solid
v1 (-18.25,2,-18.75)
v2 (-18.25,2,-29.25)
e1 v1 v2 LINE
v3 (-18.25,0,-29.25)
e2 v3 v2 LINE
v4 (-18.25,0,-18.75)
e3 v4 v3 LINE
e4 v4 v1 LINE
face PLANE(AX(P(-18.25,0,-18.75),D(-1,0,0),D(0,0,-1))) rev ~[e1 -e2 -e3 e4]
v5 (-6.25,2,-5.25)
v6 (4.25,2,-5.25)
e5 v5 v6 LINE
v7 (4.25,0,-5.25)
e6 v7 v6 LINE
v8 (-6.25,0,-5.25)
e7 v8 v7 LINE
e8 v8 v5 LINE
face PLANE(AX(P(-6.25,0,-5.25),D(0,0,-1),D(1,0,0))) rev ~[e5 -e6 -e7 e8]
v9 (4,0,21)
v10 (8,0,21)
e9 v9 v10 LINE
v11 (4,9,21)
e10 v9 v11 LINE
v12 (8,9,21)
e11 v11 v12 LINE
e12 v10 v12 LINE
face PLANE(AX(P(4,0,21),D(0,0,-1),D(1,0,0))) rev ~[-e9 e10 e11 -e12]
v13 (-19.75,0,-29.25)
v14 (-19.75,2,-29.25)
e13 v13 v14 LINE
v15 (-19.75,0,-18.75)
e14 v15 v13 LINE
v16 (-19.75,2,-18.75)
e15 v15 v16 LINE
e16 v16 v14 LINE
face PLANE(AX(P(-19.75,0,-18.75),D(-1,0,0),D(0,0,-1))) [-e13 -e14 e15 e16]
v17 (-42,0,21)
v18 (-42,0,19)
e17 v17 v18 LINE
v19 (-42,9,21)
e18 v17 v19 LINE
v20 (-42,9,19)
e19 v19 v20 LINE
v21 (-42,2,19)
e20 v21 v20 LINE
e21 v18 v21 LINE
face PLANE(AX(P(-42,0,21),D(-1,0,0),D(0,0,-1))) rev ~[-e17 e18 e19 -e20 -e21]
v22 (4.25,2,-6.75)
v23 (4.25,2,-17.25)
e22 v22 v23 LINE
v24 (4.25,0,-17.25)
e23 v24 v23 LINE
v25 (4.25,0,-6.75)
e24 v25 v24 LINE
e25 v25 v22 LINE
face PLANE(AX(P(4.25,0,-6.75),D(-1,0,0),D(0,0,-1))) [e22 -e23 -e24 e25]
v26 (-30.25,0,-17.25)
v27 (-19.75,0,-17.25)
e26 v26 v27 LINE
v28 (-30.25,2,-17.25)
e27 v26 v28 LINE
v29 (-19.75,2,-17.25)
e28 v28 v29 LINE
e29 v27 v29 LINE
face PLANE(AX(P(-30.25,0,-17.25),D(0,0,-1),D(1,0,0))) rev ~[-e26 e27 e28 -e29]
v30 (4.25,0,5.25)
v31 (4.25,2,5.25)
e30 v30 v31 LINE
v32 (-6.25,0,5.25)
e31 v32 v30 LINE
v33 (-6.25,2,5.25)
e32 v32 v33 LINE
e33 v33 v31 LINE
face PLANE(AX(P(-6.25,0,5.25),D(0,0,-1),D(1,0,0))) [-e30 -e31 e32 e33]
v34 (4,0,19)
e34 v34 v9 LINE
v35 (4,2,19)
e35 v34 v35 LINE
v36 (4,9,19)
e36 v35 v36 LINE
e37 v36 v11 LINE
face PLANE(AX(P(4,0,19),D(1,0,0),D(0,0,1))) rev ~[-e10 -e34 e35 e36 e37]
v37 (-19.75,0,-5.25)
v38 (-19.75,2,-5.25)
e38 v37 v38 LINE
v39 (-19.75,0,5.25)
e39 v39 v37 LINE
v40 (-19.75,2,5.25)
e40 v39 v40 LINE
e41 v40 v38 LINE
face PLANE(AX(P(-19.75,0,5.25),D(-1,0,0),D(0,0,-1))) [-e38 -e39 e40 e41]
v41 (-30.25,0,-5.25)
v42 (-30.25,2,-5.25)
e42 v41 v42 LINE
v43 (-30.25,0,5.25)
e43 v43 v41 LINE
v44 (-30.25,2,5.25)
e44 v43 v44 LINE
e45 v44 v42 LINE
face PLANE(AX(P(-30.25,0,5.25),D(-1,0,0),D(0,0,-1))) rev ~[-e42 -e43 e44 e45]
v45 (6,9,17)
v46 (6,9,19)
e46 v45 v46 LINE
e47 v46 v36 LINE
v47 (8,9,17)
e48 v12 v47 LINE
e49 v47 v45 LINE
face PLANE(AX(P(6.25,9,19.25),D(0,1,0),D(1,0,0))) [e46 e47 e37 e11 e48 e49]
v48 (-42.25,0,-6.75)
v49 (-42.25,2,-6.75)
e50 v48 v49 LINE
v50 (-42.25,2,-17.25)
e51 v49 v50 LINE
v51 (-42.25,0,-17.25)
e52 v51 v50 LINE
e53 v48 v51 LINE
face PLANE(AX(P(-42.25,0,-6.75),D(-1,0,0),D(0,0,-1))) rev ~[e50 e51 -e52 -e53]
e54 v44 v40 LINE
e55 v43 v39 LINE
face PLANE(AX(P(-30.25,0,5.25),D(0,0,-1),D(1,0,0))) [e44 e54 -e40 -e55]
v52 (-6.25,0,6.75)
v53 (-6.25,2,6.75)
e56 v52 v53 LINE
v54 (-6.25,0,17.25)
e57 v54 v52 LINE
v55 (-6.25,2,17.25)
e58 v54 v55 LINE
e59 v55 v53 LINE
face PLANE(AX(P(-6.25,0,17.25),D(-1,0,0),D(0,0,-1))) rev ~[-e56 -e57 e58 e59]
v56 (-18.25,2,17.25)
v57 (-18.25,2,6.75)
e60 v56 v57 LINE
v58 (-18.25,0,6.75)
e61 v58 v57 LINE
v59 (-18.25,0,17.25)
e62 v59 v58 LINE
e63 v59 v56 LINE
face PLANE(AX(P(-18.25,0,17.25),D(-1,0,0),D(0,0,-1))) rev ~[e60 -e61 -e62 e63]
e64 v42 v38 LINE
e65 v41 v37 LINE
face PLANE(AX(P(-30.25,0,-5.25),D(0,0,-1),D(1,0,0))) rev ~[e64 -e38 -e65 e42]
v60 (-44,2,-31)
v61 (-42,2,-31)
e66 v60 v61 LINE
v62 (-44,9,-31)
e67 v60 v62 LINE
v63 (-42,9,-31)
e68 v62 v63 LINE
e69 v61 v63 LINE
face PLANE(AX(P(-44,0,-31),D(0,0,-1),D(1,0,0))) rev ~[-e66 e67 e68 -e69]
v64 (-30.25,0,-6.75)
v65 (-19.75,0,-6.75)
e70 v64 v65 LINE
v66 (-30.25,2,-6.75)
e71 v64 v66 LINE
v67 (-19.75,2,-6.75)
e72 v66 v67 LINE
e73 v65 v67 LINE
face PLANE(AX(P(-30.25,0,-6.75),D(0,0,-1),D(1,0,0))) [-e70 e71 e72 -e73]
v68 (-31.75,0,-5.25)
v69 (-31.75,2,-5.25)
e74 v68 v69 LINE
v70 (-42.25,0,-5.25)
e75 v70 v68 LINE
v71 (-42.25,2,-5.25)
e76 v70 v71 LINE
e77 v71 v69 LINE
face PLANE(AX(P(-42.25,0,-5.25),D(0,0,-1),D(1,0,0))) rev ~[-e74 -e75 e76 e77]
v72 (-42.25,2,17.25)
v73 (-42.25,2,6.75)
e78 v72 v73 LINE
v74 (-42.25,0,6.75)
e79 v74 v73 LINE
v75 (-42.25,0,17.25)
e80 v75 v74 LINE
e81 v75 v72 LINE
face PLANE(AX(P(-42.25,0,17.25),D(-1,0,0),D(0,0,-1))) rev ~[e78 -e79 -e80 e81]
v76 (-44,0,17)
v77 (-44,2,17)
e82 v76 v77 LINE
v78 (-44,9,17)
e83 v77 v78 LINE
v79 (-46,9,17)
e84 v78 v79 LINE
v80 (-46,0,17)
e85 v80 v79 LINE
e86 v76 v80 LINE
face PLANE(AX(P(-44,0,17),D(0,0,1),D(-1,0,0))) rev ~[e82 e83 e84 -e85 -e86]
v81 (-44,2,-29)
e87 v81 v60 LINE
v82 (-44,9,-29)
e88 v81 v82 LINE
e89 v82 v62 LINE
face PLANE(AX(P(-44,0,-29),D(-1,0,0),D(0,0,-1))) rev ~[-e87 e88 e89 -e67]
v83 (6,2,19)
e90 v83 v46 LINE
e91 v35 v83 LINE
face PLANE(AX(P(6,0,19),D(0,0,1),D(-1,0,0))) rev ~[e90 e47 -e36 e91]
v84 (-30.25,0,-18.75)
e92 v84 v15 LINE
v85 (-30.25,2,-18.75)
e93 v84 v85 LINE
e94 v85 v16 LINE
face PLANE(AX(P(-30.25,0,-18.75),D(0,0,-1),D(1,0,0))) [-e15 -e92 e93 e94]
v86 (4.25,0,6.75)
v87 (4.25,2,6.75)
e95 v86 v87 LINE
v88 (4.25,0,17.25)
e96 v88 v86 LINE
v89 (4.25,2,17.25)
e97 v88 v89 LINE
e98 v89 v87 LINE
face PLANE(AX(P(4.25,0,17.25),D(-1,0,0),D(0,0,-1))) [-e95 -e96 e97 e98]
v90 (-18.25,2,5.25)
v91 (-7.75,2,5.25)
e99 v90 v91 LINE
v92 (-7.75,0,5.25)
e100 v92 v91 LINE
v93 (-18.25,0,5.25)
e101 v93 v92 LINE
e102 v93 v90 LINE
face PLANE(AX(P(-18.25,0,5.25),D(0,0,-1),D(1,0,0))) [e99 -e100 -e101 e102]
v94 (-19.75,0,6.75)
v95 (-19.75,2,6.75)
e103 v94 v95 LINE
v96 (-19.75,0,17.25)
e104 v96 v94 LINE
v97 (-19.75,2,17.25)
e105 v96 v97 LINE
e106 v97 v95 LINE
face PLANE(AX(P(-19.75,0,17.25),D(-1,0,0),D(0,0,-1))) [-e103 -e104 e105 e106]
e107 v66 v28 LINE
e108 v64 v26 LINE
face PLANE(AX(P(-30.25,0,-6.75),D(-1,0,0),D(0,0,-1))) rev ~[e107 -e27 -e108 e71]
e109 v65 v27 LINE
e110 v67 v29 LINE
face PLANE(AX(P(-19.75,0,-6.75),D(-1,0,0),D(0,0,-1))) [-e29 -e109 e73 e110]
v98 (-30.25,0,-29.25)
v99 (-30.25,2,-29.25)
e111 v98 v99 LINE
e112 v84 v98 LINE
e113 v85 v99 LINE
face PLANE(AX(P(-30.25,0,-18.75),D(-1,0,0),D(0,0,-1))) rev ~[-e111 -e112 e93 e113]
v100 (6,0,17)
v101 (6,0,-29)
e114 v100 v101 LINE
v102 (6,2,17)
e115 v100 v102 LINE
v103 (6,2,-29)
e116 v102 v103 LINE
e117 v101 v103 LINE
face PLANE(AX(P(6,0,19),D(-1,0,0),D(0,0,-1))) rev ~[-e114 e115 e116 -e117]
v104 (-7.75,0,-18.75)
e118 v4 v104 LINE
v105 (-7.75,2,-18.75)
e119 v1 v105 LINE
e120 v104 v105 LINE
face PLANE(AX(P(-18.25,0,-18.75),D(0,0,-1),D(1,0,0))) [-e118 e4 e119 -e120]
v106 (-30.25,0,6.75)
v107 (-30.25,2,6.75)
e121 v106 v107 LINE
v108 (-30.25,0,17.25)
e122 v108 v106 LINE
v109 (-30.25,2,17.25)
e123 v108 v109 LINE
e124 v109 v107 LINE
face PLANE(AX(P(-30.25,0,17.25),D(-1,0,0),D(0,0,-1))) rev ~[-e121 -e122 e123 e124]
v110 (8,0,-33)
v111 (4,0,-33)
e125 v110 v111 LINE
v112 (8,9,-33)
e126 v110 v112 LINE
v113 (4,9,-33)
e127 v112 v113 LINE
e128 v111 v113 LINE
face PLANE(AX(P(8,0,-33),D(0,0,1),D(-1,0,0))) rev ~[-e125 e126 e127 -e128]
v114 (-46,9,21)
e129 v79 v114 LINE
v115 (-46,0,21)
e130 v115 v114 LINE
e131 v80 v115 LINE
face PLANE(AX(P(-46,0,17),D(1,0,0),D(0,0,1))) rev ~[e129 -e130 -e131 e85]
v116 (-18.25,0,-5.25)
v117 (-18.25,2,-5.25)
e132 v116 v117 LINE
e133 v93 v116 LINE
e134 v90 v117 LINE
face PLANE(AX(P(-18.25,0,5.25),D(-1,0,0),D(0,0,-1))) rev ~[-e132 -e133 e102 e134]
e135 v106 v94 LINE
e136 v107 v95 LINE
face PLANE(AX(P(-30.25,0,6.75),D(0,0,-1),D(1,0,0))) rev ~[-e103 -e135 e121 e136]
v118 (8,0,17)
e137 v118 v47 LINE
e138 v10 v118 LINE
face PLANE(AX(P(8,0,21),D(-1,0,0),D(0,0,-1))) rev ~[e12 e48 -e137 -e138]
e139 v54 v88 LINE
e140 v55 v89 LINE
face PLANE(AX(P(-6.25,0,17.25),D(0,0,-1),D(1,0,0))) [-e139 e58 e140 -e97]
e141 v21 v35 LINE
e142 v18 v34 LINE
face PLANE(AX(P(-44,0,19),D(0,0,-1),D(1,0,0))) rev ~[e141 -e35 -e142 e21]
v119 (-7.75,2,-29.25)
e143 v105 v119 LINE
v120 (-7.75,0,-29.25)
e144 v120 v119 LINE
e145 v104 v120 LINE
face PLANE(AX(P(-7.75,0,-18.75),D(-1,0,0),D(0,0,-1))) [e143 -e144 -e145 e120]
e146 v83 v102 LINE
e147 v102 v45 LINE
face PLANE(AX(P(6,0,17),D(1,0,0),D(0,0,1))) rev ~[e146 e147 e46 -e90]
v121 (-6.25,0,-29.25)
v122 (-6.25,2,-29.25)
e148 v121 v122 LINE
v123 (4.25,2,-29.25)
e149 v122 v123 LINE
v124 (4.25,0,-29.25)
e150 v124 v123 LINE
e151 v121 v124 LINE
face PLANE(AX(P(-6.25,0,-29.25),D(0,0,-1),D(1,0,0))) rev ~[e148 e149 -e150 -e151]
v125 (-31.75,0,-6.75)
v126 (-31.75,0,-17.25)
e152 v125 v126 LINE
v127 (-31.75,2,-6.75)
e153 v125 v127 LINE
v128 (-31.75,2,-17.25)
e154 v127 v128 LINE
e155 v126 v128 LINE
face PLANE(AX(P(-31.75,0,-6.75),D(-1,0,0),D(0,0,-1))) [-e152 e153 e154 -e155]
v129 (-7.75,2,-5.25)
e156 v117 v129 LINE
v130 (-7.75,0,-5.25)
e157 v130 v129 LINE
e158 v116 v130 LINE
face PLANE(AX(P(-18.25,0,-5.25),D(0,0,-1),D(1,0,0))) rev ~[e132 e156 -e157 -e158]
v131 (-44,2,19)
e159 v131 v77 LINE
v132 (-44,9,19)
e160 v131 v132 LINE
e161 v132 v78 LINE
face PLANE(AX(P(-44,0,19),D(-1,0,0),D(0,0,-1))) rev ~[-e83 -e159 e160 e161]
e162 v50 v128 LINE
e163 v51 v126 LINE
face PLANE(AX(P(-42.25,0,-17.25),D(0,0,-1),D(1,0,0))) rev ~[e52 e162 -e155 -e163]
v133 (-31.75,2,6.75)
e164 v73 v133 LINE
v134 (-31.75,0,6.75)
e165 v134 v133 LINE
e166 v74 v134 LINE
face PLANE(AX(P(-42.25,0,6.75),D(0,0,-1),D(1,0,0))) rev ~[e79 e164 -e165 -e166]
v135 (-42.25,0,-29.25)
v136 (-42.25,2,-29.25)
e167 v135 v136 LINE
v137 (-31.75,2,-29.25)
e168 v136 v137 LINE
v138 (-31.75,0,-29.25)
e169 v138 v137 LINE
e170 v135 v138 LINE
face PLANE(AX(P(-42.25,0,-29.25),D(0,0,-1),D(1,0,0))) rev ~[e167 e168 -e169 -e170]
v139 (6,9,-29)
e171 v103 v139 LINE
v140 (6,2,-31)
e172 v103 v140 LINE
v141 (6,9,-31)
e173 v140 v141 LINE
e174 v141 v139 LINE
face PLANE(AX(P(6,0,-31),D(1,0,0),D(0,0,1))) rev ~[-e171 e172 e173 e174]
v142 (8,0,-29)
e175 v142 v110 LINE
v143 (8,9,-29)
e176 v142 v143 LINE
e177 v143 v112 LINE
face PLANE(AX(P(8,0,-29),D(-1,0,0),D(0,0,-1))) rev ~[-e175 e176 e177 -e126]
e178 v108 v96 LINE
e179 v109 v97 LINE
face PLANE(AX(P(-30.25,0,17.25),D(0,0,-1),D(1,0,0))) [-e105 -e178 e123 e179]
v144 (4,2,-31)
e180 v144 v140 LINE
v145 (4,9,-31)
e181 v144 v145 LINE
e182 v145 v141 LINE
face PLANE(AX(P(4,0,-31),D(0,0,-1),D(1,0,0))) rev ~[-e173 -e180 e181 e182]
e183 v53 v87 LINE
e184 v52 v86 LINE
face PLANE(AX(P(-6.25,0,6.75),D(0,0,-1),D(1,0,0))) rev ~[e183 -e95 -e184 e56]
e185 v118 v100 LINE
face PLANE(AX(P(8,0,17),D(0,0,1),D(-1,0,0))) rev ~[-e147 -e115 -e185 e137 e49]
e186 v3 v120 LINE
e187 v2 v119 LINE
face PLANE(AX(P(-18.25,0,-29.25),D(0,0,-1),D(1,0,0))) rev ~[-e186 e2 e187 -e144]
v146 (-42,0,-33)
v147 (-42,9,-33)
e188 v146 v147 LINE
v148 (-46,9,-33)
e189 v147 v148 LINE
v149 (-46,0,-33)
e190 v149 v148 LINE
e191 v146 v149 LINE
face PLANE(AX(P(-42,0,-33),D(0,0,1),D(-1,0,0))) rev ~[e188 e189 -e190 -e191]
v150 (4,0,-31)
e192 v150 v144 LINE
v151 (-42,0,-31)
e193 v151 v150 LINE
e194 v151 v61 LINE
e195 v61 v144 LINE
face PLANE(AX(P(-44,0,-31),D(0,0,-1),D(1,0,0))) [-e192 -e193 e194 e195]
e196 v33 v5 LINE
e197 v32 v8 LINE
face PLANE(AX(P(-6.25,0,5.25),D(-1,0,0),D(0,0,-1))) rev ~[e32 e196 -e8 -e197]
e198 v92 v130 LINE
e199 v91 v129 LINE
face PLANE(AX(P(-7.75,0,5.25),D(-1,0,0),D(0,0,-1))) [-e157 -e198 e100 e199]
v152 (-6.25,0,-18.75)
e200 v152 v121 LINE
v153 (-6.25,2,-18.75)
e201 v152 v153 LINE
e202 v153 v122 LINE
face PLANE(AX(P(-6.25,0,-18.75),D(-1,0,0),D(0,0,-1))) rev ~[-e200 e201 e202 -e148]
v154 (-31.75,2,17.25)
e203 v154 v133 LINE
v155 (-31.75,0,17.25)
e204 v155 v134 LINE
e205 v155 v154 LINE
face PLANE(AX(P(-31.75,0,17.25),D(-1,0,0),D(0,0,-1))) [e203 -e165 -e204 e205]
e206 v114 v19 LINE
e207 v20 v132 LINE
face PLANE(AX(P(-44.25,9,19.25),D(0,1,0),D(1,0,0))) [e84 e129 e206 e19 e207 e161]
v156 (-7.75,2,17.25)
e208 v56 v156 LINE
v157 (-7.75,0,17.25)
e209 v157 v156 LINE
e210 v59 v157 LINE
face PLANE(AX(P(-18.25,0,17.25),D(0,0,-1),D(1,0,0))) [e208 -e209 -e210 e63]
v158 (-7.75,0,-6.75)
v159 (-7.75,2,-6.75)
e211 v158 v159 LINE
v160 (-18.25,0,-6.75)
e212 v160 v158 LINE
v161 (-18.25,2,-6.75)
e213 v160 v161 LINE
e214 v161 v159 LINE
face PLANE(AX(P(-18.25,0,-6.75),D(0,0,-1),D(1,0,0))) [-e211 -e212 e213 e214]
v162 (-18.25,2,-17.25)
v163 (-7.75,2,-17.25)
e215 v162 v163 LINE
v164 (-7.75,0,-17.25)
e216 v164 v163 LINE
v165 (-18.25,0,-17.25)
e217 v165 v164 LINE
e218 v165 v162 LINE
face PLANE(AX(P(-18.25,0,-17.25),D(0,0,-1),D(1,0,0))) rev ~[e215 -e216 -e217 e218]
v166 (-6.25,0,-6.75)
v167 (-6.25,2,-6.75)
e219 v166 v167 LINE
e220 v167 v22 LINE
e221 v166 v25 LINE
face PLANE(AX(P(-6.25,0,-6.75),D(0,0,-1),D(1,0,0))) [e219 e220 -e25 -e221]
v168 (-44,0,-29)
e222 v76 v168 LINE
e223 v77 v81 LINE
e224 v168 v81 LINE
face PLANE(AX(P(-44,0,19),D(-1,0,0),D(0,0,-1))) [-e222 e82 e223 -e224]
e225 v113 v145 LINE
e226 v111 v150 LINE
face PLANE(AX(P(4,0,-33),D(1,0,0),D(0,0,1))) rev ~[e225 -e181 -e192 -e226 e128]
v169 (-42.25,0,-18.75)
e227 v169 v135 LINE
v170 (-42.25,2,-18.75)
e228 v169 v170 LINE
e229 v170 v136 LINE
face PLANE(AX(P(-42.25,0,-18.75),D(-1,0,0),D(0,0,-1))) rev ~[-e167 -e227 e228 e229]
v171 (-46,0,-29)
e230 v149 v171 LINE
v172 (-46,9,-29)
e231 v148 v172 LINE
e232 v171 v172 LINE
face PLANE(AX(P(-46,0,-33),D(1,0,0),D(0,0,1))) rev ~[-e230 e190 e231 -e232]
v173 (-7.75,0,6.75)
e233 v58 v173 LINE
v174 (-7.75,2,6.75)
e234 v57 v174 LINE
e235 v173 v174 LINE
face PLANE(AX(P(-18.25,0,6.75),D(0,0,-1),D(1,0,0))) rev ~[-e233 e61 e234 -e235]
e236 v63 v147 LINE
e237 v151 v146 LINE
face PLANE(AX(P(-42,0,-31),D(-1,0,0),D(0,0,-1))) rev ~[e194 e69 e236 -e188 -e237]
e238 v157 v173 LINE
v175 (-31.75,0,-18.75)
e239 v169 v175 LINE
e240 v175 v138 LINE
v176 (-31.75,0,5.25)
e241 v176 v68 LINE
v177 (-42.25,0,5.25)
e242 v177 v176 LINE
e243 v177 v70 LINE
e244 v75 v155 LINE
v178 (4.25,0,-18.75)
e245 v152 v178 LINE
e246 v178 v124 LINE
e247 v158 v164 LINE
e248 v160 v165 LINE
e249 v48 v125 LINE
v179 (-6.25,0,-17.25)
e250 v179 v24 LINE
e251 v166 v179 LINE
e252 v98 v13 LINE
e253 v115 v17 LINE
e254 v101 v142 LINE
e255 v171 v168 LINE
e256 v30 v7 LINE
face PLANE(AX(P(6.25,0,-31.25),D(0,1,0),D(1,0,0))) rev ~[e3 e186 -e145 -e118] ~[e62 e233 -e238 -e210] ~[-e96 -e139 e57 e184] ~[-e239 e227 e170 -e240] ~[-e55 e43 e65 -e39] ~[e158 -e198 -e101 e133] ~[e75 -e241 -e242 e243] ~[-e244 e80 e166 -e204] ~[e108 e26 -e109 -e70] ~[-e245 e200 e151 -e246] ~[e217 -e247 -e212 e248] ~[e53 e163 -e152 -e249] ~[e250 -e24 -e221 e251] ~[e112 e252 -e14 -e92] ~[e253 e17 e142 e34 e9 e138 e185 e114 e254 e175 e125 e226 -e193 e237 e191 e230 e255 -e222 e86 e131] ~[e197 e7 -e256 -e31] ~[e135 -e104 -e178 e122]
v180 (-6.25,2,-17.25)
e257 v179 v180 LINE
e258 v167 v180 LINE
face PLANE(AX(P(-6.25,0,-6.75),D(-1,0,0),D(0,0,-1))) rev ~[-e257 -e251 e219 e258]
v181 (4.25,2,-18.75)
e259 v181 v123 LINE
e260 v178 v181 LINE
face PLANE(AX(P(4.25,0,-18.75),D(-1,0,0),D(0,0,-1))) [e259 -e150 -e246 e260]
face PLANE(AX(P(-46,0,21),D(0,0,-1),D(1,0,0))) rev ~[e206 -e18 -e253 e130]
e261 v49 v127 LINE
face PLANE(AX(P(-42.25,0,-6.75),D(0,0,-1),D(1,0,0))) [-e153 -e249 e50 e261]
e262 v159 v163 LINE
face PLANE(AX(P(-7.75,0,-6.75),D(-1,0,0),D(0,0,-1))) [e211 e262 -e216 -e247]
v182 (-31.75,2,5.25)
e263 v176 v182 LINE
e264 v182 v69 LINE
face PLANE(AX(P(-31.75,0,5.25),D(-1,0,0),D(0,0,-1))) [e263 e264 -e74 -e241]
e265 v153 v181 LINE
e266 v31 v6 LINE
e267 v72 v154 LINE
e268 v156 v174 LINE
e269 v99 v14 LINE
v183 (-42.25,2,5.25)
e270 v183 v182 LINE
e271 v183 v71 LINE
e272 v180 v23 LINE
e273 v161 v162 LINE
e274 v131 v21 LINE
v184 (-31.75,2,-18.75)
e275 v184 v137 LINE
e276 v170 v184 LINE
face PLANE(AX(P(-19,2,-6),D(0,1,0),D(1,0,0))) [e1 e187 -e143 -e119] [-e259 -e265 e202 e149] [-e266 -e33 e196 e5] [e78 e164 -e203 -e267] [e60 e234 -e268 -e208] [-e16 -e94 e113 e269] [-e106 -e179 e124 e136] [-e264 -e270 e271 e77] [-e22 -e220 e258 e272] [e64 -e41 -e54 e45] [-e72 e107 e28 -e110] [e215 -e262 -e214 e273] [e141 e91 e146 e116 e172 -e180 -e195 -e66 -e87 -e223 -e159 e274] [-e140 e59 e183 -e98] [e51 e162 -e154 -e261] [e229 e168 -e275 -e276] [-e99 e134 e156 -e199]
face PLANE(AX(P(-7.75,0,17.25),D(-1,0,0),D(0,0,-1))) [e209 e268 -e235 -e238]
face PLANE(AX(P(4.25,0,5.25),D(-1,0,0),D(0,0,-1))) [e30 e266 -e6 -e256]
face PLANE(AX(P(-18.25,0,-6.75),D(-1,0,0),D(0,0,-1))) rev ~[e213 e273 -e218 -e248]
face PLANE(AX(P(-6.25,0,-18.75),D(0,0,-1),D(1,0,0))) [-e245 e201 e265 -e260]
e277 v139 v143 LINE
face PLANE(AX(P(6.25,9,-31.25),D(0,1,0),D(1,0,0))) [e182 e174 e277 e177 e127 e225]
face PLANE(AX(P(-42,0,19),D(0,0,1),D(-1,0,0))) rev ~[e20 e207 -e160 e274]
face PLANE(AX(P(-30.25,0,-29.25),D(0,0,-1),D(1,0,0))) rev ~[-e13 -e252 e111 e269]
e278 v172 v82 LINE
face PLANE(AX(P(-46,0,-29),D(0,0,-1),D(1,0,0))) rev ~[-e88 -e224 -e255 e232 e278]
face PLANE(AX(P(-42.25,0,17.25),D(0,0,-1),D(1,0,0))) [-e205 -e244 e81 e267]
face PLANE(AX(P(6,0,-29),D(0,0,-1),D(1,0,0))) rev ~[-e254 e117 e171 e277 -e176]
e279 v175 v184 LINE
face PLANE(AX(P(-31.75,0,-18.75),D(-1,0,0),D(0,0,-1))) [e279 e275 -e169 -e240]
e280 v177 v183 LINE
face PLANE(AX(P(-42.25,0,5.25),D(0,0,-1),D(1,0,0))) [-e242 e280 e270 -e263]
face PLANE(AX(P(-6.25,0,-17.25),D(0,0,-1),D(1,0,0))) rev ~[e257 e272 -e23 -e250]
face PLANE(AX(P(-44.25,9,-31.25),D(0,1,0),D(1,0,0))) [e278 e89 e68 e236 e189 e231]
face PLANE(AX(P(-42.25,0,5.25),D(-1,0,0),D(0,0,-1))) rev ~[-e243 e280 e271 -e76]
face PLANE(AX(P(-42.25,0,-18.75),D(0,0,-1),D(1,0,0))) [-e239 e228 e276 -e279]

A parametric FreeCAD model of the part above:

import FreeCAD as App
import Part
import Sketcher

doc = App.newDocument("Part")
body = doc.addObject("PartDesign::Body", "Body")

sketch1 = body.newObject("Sketcher::SketchObject", "Sketch")
sketch1.AttachmentSupport = (doc.getObject("XZ_Plane"), [""])
sketch1.MapMode = "FlatFace"
sketch1.addGeometry(Part.LineSegment(App.Vector(-44, -31, 0), App.Vector(-44, 19, 0)), False)
sketch1.addGeometry(Part.LineSegment(App.Vector(-44, 19, 0), App.Vector(6, 19, 0)), False)
sketch1.addGeometry(Part.LineSegment(App.Vector(6, 19, 0), App.Vector(6, -31, 0)), False)
sketch1.addGeometry(Part.LineSegment(App.Vector(6, -31, 0), App.Vector(-44, -31, 0)), False)
sketch1.addGeometry(Part.LineSegment(App.Vector(-32, 17, 0), App.Vector(-42, 17, 0)), False)
sketch1.addGeometry(Part.LineSegment(App.Vector(-42, 17, 0), App.Vector(-42, 7, 0)), False)
sketch1.addGeometry(Part.LineSegment(App.Vector(-42, 7, 0), App.Vector(-32, 7, 0)), False)
sketch1.addGeometry(Part.LineSegment(App.Vector(-32, 7, 0), App.Vector(-32, 17, 0)), False)
sketch1.addGeometry(Part.LineSegment(App.Vector(-20, 17, 0), App.Vector(-30, 17, 0)), False)
sketch1.addGeometry(Part.LineSegment(App.Vector(-30, 17, 0), App.Vector(-30, 7, 0)), False)
sketch1.addGeometry(Part.LineSegment(App.Vector(-30, 7, 0), App.Vector(-20, 7, 0)), False)
sketch1.addGeometry(Part.LineSegment(App.Vector(-20, 7, 0), App.Vector(-20, 17, 0)), False)
sketch1.addGeometry(Part.LineSegment(App.Vector(-32, 5, 0), App.Vector(-42, 5, 0)), False)
sketch1.addGeometry(Part.LineSegment(App.Vector(-42, 5, 0), App.Vector(-42, -5, 0)), False)
sketch1.addGeometry(Part.LineSegment(App.Vector(-42, -5, 0), App.Vector(-32, -5, 0)), False)
sketch1.addGeometry(Part.LineSegment(App.Vector(-32, -5, 0), App.Vector(-32, 5, 0)), False)
sketch1.addGeometry(Part.LineSegment(App.Vector(-20, 5, 0), App.Vector(-30, 5, 0)), False)
sketch1.addGeometry(Part.LineSegment(App.Vector(-30, 5, 0), App.Vector(-30, -5, 0)), False)
sketch1.addGeometry(Part.LineSegment(App.Vector(-30, -5, 0), App.Vector(-20, -5, 0)), False)
sketch1.addGeometry(Part.LineSegment(App.Vector(-20, -5, 0), App.Vector(-20, 5, 0)), False)
sketch1.addGeometry(Part.LineSegment(App.Vector(-8, 17, 0), App.Vector(-18, 17, 0)), False)
sketch1.addGeometry(Part.LineSegment(App.Vector(-18, 17, 0), App.Vector(-18, 7, 0)), False)
sketch1.addGeometry(Part.LineSegment(App.Vector(-18, 7, 0), App.Vector(-8, 7, 0)), False)
sketch1.addGeometry(Part.LineSegment(App.Vector(-8, 7, 0), App.Vector(-8, 17, 0)), False)
sketch1.addGeometry(Part.LineSegment(App.Vector(4, 17, 0), App.Vector(-6, 17, 0)), False)
sketch1.addGeometry(Part.LineSegment(App.Vector(-6, 17, 0), App.Vector(-6, 7, 0)), False)
sketch1.addGeometry(Part.LineSegment(App.Vector(-6, 7, 0), App.Vector(4, 7, 0)), False)
sketch1.addGeometry(Part.LineSegment(App.Vector(4, 7, 0), App.Vector(4, 17, 0)), False)
sketch1.addGeometry(Part.LineSegment(App.Vector(-8, 5, 0), App.Vector(-18, 5, 0)), False)
sketch1.addGeometry(Part.LineSegment(App.Vector(-18, 5, 0), App.Vector(-18, -5, 0)), False)
sketch1.addGeometry(Part.LineSegment(App.Vector(-18, -5, 0), App.Vector(-8, -5, 0)), False)
sketch1.addGeometry(Part.LineSegment(App.Vector(-8, -5, 0), App.Vector(-8, 5, 0)), False)
sketch1.addGeometry(Part.LineSegment(App.Vector(4, 5, 0), App.Vector(-6, 5, 0)), False)
sketch1.addGeometry(Part.LineSegment(App.Vector(-6, 5, 0), App.Vector(-6, -5, 0)), False)
sketch1.addGeometry(Part.LineSegment(App.Vector(-6, -5, 0), App.Vector(4, -5, 0)), False)
sketch1.addGeometry(Part.LineSegment(App.Vector(4, -5, 0), App.Vector(4, 5, 0)), False)
sketch1.addGeometry(Part.LineSegment(App.Vector(-32, -7, 0), App.Vector(-42, -7, 0)), False)
sketch1.addGeometry(Part.LineSegment(App.Vector(-42, -7, 0), App.Vector(-42, -17, 0)), False)
sketch1.addGeometry(Part.LineSegment(App.Vector(-42, -17, 0), App.Vector(-32, -17, 0)), False)
sketch1.addGeometry(Part.LineSegment(App.Vector(-32, -17, 0), App.Vector(-32, -7, 0)), False)
sketch1.addGeometry(Part.LineSegment(App.Vector(-20, -7, 0), App.Vector(-30, -7, 0)), False)
sketch1.addGeometry(Part.LineSegment(App.Vector(-30, -7, 0), App.Vector(-30, -17, 0)), False)
sketch1.addGeometry(Part.LineSegment(App.Vector(-30, -17, 0), App.Vector(-20, -17, 0)), False)
sketch1.addGeometry(Part.LineSegment(App.Vector(-20, -17, 0), App.Vector(-20, -7, 0)), False)
sketch1.addGeometry(Part.LineSegment(App.Vector(-32, -19, 0), App.Vector(-42, -19, 0)), False)
sketch1.addGeometry(Part.LineSegment(App.Vector(-42, -19, 0), App.Vector(-42, -29, 0)), False)
sketch1.addGeometry(Part.LineSegment(App.Vector(-42, -29, 0), App.Vector(-32, -29, 0)), False)
sketch1.addGeometry(Part.LineSegment(App.Vector(-32, -29, 0), App.Vector(-32, -19, 0)), False)
sketch1.addGeometry(Part.LineSegment(App.Vector(-20, -19, 0), App.Vector(-30, -19, 0)), False)
sketch1.addGeometry(Part.LineSegment(App.Vector(-30, -19, 0), App.Vector(-30, -29, 0)), False)
sketch1.addGeometry(Part.LineSegment(App.Vector(-30, -29, 0), App.Vector(-20, -29, 0)), False)
sketch1.addGeometry(Part.LineSegment(App.Vector(-20, -29, 0), App.Vector(-20, -19, 0)), False)
sketch1.addGeometry(Part.LineSegment(App.Vector(-8, -7, 0), App.Vector(-18, -7, 0)), False)
sketch1.addGeometry(Part.LineSegment(App.Vector(-18, -7, 0), App.Vector(-18, -17, 0)), False)
sketch1.addGeometry(Part.LineSegment(App.Vector(-18, -17, 0), App.Vector(-8, -17, 0)), False)
sketch1.addGeometry(Part.LineSegment(App.Vector(-8, -17, 0), App.Vector(-8, -7, 0)), False)
sketch1.addGeometry(Part.LineSegment(App.Vector(4, -7, 0), App.Vector(-6, -7, 0)), False)
sketch1.addGeometry(Part.LineSegment(App.Vector(-6, -7, 0), App.Vector(-6, -17, 0)), False)
sketch1.addGeometry(Part.LineSegment(App.Vector(-6, -17, 0), App.Vector(4, -17, 0)), False)
sketch1.addGeometry(Part.LineSegment(App.Vector(4, -17, 0), App.Vector(4, -7, 0)), False)
sketch1.addGeometry(Part.LineSegment(App.Vector(-8, -19, 0), App.Vector(-18, -19, 0)), False)
sketch1.addGeometry(Part.LineSegment(App.Vector(-18, -19, 0), App.Vector(-18, -29, 0)), False)
sketch1.addGeometry(Part.LineSegment(App.Vector(-18, -29, 0), App.Vector(-8, -29, 0)), False)
sketch1.addGeometry(Part.LineSegment(App.Vector(-8, -29, 0), App.Vector(-8, -19, 0)), False)
sketch1.addGeometry(Part.LineSegment(App.Vector(4, -19, 0), App.Vector(-6, -19, 0)), False)
sketch1.addGeometry(Part.LineSegment(App.Vector(-6, -19, 0), App.Vector(-6, -29, 0)), False)
sketch1.addGeometry(Part.LineSegment(App.Vector(-6, -29, 0), App.Vector(4, -29, 0)), False)
sketch1.addGeometry(Part.LineSegment(App.Vector(4, -29, 0), App.Vector(4, -19, 0)), False)
sketch1.addConstraint(Sketcher.Constraint("Coincident", 0, 2, 1, 1))
sketch1.addConstraint(Sketcher.Constraint("Coincident", 1, 2, 2, 1))
sketch1.addConstraint(Sketcher.Constraint("Coincident", 2, 2, 3, 1))
sketch1.addConstraint(Sketcher.Constraint("Coincident", 3, 2, 0, 1))
sketch1.addConstraint(Sketcher.Constraint("Coincident", 4, 2, 5, 1))
sketch1.addConstraint(Sketcher.Constraint("Coincident", 5, 2, 6, 1))
sketch1.addConstraint(Sketcher.Constraint("Coincident", 6, 2, 7, 1))
sketch1.addConstraint(Sketcher.Constraint("Coincident", 7, 2, 4, 1))
sketch1.addConstraint(Sketcher.Constraint("Coincident", 8, 2, 9, 1))
sketch1.addConstraint(Sketcher.Constraint("Coincident", 9, 2, 10, 1))
sketch1.addConstraint(Sketcher.Constraint("Coincident", 10, 2, 11, 1))
sketch1.addConstraint(Sketcher.Constraint("Coincident", 11, 2, 8, 1))
sketch1.addConstraint(Sketcher.Constraint("Coincident", 12, 2, 13, 1))
sketch1.addConstraint(Sketcher.Constraint("Coincident", 13, 2, 14, 1))
sketch1.addConstraint(Sketcher.Constraint("Coincident", 14, 2, 15, 1))
sketch1.addConstraint(Sketcher.Constraint("Coincident", 15, 2, 12, 1))
sketch1.addConstraint(Sketcher.Constraint("Coincident", 16, 2, 17, 1))
sketch1.addConstraint(Sketcher.Constraint("Coincident", 17, 2, 18, 1))
sketch1.addConstraint(Sketcher.Constraint("Coincident", 18, 2, 19, 1))
sketch1.addConstraint(Sketcher.Constraint("Coincident", 19, 2, 16, 1))
sketch1.addConstraint(Sketcher.Constraint("Coincident", 20, 2, 21, 1))
sketch1.addConstraint(Sketcher.Constraint("Coincident", 21, 2, 22, 1))
sketch1.addConstraint(Sketcher.Constraint("Coincident", 22, 2, 23, 1))
sketch1.addConstraint(Sketcher.Constraint("Coincident", 23, 2, 20, 1))
sketch1.addConstraint(Sketcher.Constraint("Coincident", 24, 2, 25, 1))
sketch1.addConstraint(Sketcher.Constraint("Coincident", 25, 2, 26, 1))
sketch1.addConstraint(Sketcher.Constraint("Coincident", 26, 2, 27, 1))
sketch1.addConstraint(Sketcher.Constraint("Coincident", 27, 2, 24, 1))
sketch1.addConstraint(Sketcher.Constraint("Coincident", 28, 2, 29, 1))
sketch1.addConstraint(Sketcher.Constraint("Coincident", 29, 2, 30, 1))
sketch1.addConstraint(Sketcher.Constraint("Coincident", 30, 2, 31, 1))
sketch1.addConstraint(Sketcher.Constraint("Coincident", 31, 2, 28, 1))
sketch1.addConstraint(Sketcher.Constraint("Coincident", 32, 2, 33, 1))
sketch1.addConstraint(Sketcher.Constraint("Coincident", 33, 2, 34, 1))
sketch1.addConstraint(Sketcher.Constraint("Coincident", 34, 2, 35, 1))
sketch1.addConstraint(Sketcher.Constraint("Coincident", 35, 2, 32, 1))
sketch1.addConstraint(Sketcher.Constraint("Coincident", 36, 2, 37, 1))
sketch1.addConstraint(Sketcher.Constraint("Coincident", 37, 2, 38, 1))
sketch1.addConstraint(Sketcher.Constraint("Coincident", 38, 2, 39, 1))
sketch1.addConstraint(Sketcher.Constraint("Coincident", 39, 2, 36, 1))
sketch1.addConstraint(Sketcher.Constraint("Coincident", 40, 2, 41, 1))
sketch1.addConstraint(Sketcher.Constraint("Coincident", 41, 2, 42, 1))
sketch1.addConstraint(Sketcher.Constraint("Coincident", 42, 2, 43, 1))
sketch1.addConstraint(Sketcher.Constraint("Coincident", 43, 2, 40, 1))
sketch1.addConstraint(Sketcher.Constraint("Coincident", 44, 2, 45, 1))
sketch1.addConstraint(Sketcher.Constraint("Coincident", 45, 2, 46, 1))
sketch1.addConstraint(Sketcher.Constraint("Coincident", 46, 2, 47, 1))
sketch1.addConstraint(Sketcher.Constraint("Coincident", 47, 2, 44, 1))
sketch1.addConstraint(Sketcher.Constraint("Coincident", 48, 2, 49, 1))
sketch1.addConstraint(Sketcher.Constraint("Coincident", 49, 2, 50, 1))
sketch1.addConstraint(Sketcher.Constraint("Coincident", 50, 2, 51, 1))
sketch1.addConstraint(Sketcher.Constraint("Coincident", 51, 2, 48, 1))
sketch1.addConstraint(Sketcher.Constraint("Coincident", 52, 2, 53, 1))
sketch1.addConstraint(Sketcher.Constraint("Coincident", 53, 2, 54, 1))
sketch1.addConstraint(Sketcher.Constraint("Coincident", 54, 2, 55, 1))
sketch1.addConstraint(Sketcher.Constraint("Coincident", 55, 2, 52, 1))
sketch1.addConstraint(Sketcher.Constraint("Coincident", 56, 2, 57, 1))
sketch1.addConstraint(Sketcher.Constraint("Coincident", 57, 2, 58, 1))
sketch1.addConstraint(Sketcher.Constraint("Coincident", 58, 2, 59, 1))
sketch1.addConstraint(Sketcher.Constraint("Coincident", 59, 2, 56, 1))
sketch1.addConstraint(Sketcher.Constraint("Coincident", 60, 2, 61, 1))
sketch1.addConstraint(Sketcher.Constraint("Coincident", 61, 2, 62, 1))
sketch1.addConstraint(Sketcher.Constraint("Coincident", 62, 2, 63, 1))
sketch1.addConstraint(Sketcher.Constraint("Coincident", 63, 2, 60, 1))
sketch1.addConstraint(Sketcher.Constraint("Coincident", 64, 2, 65, 1))
sketch1.addConstraint(Sketcher.Constraint("Coincident", 65, 2, 66, 1))
sketch1.addConstraint(Sketcher.Constraint("Coincident", 66, 2, 67, 1))
sketch1.addConstraint(Sketcher.Constraint("Coincident", 67, 2, 64, 1))
sketch1.addConstraint(Sketcher.Constraint("Vertical", 0))
sketch1.addConstraint(Sketcher.Constraint("Horizontal", 1))
sketch1.addConstraint(Sketcher.Constraint("Vertical", 2))
sketch1.addConstraint(Sketcher.Constraint("Horizontal", 3))
sketch1.addConstraint(Sketcher.Constraint("Horizontal", 4))
sketch1.addConstraint(Sketcher.Constraint("Vertical", 5))
sketch1.addConstraint(Sketcher.Constraint("Horizontal", 6))
sketch1.addConstraint(Sketcher.Constraint("Vertical", 7))
sketch1.addConstraint(Sketcher.Constraint("Horizontal", 8))
sketch1.addConstraint(Sketcher.Constraint("Vertical", 9))
sketch1.addConstraint(Sketcher.Constraint("Horizontal", 10))
sketch1.addConstraint(Sketcher.Constraint("Vertical", 11))
sketch1.addConstraint(Sketcher.Constraint("Horizontal", 12))
sketch1.addConstraint(Sketcher.Constraint("Vertical", 13))
sketch1.addConstraint(Sketcher.Constraint("Horizontal", 14))
sketch1.addConstraint(Sketcher.Constraint("Vertical", 15))
sketch1.addConstraint(Sketcher.Constraint("Horizontal", 16))
sketch1.addConstraint(Sketcher.Constraint("Vertical", 17))
sketch1.addConstraint(Sketcher.Constraint("Horizontal", 18))
sketch1.addConstraint(Sketcher.Constraint("Vertical", 19))
sketch1.addConstraint(Sketcher.Constraint("Horizontal", 20))
sketch1.addConstraint(Sketcher.Constraint("Vertical", 21))
sketch1.addConstraint(Sketcher.Constraint("Horizontal", 22))
sketch1.addConstraint(Sketcher.Constraint("Vertical", 23))
sketch1.addConstraint(Sketcher.Constraint("Horizontal", 24))
sketch1.addConstraint(Sketcher.Constraint("Vertical", 25))
sketch1.addConstraint(Sketcher.Constraint("Horizontal", 26))
sketch1.addConstraint(Sketcher.Constraint("Vertical", 27))
sketch1.addConstraint(Sketcher.Constraint("Horizontal", 28))
sketch1.addConstraint(Sketcher.Constraint("Vertical", 29))
sketch1.addConstraint(Sketcher.Constraint("Horizontal", 30))
sketch1.addConstraint(Sketcher.Constraint("Vertical", 31))
sketch1.addConstraint(Sketcher.Constraint("Horizontal", 32))
sketch1.addConstraint(Sketcher.Constraint("Vertical", 33))
sketch1.addConstraint(Sketcher.Constraint("Horizontal", 34))
sketch1.addConstraint(Sketcher.Constraint("Vertical", 35))
sketch1.addConstraint(Sketcher.Constraint("Horizontal", 36))
sketch1.addConstraint(Sketcher.Constraint("Vertical", 37))
sketch1.addConstraint(Sketcher.Constraint("Horizontal", 38))
sketch1.addConstraint(Sketcher.Constraint("Vertical", 39))
sketch1.addConstraint(Sketcher.Constraint("Horizontal", 40))
sketch1.addConstraint(Sketcher.Constraint("Vertical", 41))
sketch1.addConstraint(Sketcher.Constraint("Horizontal", 42))
sketch1.addConstraint(Sketcher.Constraint("Vertical", 43))
sketch1.addConstraint(Sketcher.Constraint("Horizontal", 44))
sketch1.addConstraint(Sketcher.Constraint("Vertical", 45))
sketch1.addConstraint(Sketcher.Constraint("Horizontal", 46))
sketch1.addConstraint(Sketcher.Constraint("Vertical", 47))
sketch1.addConstraint(Sketcher.Constraint("Horizontal", 48))
sketch1.addConstraint(Sketcher.Constraint("Vertical", 49))
sketch1.addConstraint(Sketcher.Constraint("Horizontal", 50))
sketch1.addConstraint(Sketcher.Constraint("Vertical", 51))
sketch1.addConstraint(Sketcher.Constraint("Horizontal", 52))
sketch1.addConstraint(Sketcher.Constraint("Vertical", 53))
sketch1.addConstraint(Sketcher.Constraint("Horizontal", 54))
sketch1.addConstraint(Sketcher.Constraint("Vertical", 55))
sketch1.addConstraint(Sketcher.Constraint("Horizontal", 56))
sketch1.addConstraint(Sketcher.Constraint("Vertical", 57))
sketch1.addConstraint(Sketcher.Constraint("Horizontal", 58))
sketch1.addConstraint(Sketcher.Constraint("Vertical", 59))
sketch1.addConstraint(Sketcher.Constraint("Horizontal", 60))
sketch1.addConstraint(Sketcher.Constraint("Vertical", 61))
sketch1.addConstraint(Sketcher.Constraint("Horizontal", 62))
sketch1.addConstraint(Sketcher.Constraint("Vertical", 63))
sketch1.addConstraint(Sketcher.Constraint("Horizontal", 64))
sketch1.addConstraint(Sketcher.Constraint("Vertical", 65))
sketch1.addConstraint(Sketcher.Constraint("Horizontal", 66))
sketch1.addConstraint(Sketcher.Constraint("Vertical", 67))
sketch1.addConstraint(Sketcher.Constraint("Symmetric", 5, 2, 36, 2, -1))
sketch1.addConstraint(Sketcher.Constraint("Symmetric", 7, 2, 38, 2, -1))
sketch1.addConstraint(Sketcher.Constraint("Symmetric", 9, 2, 40, 2, -1))
sketch1.addConstraint(Sketcher.Constraint("Symmetric", 11, 2, 42, 2, -1))
sketch1.addConstraint(Sketcher.Constraint("Symmetric", 21, 2, 52, 2, -1))
sketch1.addConstraint(Sketcher.Constraint("Symmetric", 23, 2, 54, 2, -1))
sketch1.addConstraint(Sketcher.Constraint("Symmetric", 25, 2, 56, 2, -1))
sketch1.addConstraint(Sketcher.Constraint("Symmetric", 27, 2, 58, 2, -1))
sketch1.addConstraint(Sketcher.Constraint("Horizontal", 7, 2, 8, 2))
sketch1.addConstraint(Sketcher.Constraint("Horizontal", 6, 2, 9, 2))
sketch1.addConstraint(Sketcher.Constraint("Horizontal", 15, 2, 16, 2))
sketch1.addConstraint(Sketcher.Constraint("Horizontal", 14, 2, 17, 2))
sketch1.addConstraint(Sketcher.Constraint("Horizontal", 11, 2, 20, 2))
sketch1.addConstraint(Sketcher.Constraint("Horizontal", 10, 2, 21, 2))
sketch1.addConstraint(Sketcher.Constraint("Horizontal", 23, 2, 24, 2))
sketch1.addConstraint(Sketcher.Constraint("Horizontal", 22, 2, 25, 2))
sketch1.addConstraint(Sketcher.Constraint("Horizontal", 19, 2, 28, 2))
sketch1.addConstraint(Sketcher.Constraint("Horizontal", 18, 2, 29, 2))
sketch1.addConstraint(Sketcher.Constraint("Horizontal", 31, 2, 32, 2))
sketch1.addConstraint(Sketcher.Constraint("Horizontal", 30, 2, 33, 2))
sketch1.addConstraint(Sketcher.Constraint("Horizontal", 47, 2, 48, 2))
sketch1.addConstraint(Sketcher.Constraint("Horizontal", 46, 2, 49, 2))
sketch1.addConstraint(Sketcher.Constraint("Horizontal", 51, 2, 60, 2))
sketch1.addConstraint(Sketcher.Constraint("Horizontal", 50, 2, 61, 2))
sketch1.addConstraint(Sketcher.Constraint("Horizontal", 63, 2, 64, 2))
sketch1.addConstraint(Sketcher.Constraint("Horizontal", 62, 2, 65, 2))
sketch1.addConstraint(Sketcher.Constraint("Vertical", 5, 2, 12, 2))
sketch1.addConstraint(Sketcher.Constraint("Vertical", 7, 2, 14, 2))
sketch1.addConstraint(Sketcher.Constraint("Vertical", 9, 2, 16, 2))
sketch1.addConstraint(Sketcher.Constraint("Vertical", 11, 2, 18, 2))
sketch1.addConstraint(Sketcher.Constraint("Vertical", 21, 2, 28, 2))
sketch1.addConstraint(Sketcher.Constraint("Vertical", 23, 2, 30, 2))
sketch1.addConstraint(Sketcher.Constraint("Vertical", 25, 2, 32, 2))
sketch1.addConstraint(Sketcher.Constraint("Vertical", 27, 2, 34, 2))
sketch1.addConstraint(Sketcher.Constraint("Vertical", 37, 2, 44, 2))
sketch1.addConstraint(Sketcher.Constraint("Vertical", 39, 2, 46, 2))
sketch1.addConstraint(Sketcher.Constraint("Vertical", 41, 2, 48, 2))
sketch1.addConstraint(Sketcher.Constraint("Vertical", 43, 2, 50, 2))
sketch1.addConstraint(Sketcher.Constraint("Vertical", 53, 2, 60, 2))
sketch1.addConstraint(Sketcher.Constraint("Vertical", 55, 2, 62, 2))
sketch1.addConstraint(Sketcher.Constraint("Vertical", 57, 2, 64, 2))
sketch1.addConstraint(Sketcher.Constraint("Vertical", 59, 2, 66, 2))
sketch1.addConstraint(Sketcher.Constraint("Equal", 6, 8))
sketch1.addConstraint(Sketcher.Constraint("Equal", 18, 20))
sketch1.addConstraint(Sketcher.Constraint("Equal", 22, 24))
sketch1.addConstraint(Sketcher.Constraint("Equal", 3, 0))
sketch1.addConstraint(Sketcher.Constraint("Equal", 66, 5))
sketch1.addConstraint(Sketcher.Constraint("Equal", 11, 13))
sketch1.addConstraint(Sketcher.Constraint("Equal", 43, 45))
sketch1.addConstraint(Sketcher.Constraint("DistanceX", 1, 1, 1, 2, 50.0))
sketch1.addConstraint(Sketcher.Constraint("DistanceX", 4, 2, 4, 1, 10.5))
sketch1.addConstraint(Sketcher.Constraint("DistanceX", 0, 2, -1, 1, 44.0))
sketch1.addConstraint(Sketcher.Constraint("DistanceY", -1, 1, 0, 2, 19.0))
sketch1.addConstraint(Sketcher.Constraint("DistanceX", 4, 2, -1, 1, 42.25))
sketch1.addConstraint(Sketcher.Constraint("DistanceY", -1, 1, 4, 2, 17.25))
sketch1.addConstraint(Sketcher.Constraint("DistanceX", 8, 2, -1, 1, 30.25))
sketch1.addConstraint(Sketcher.Constraint("DistanceY", -1, 1, 12, 2, 5.25))
sketch1.addConstraint(Sketcher.Constraint("DistanceX", 20, 2, -1, 1, 18.25))
sketch1.addConstraint(Sketcher.Constraint("DistanceX", 24, 2, -1, 1, 6.25))
sketch1.addConstraint(Sketcher.Constraint("DistanceY", 44, 2, -1, 1, 18.75))
pad1 = body.newObject("PartDesign::Pad", "Pad")
pad1.Profile = sketch1
pad1.Length = 2
pad1.Reversed = True

sketch2 = body.newObject("Sketcher::SketchObject", "Sketch001")
sketch2.AttachmentSupport = (doc.getObject("XZ_Plane"), [""])
sketch2.MapMode = "FlatFace"
sketch2.addGeometry(Part.LineSegment(App.Vector(4, -33, 0), App.Vector(4, -31, 0)), False)
sketch2.addGeometry(Part.LineSegment(App.Vector(4, -31, 0), App.Vector(6, -31, 0)), False)
sketch2.addGeometry(Part.LineSegment(App.Vector(6, -31, 0), App.Vector(6, -29, 0)), False)
sketch2.addGeometry(Part.LineSegment(App.Vector(6, -29, 0), App.Vector(8, -29, 0)), False)
sketch2.addGeometry(Part.LineSegment(App.Vector(8, -29, 0), App.Vector(8, -33, 0)), False)
sketch2.addGeometry(Part.LineSegment(App.Vector(8, -33, 0), App.Vector(4, -33, 0)), False)
sketch2.addGeometry(Part.LineSegment(App.Vector(-44, -31, 0), App.Vector(-42, -31, 0)), False)
sketch2.addGeometry(Part.LineSegment(App.Vector(-42, -31, 0), App.Vector(-42, -33, 0)), False)
sketch2.addGeometry(Part.LineSegment(App.Vector(-42, -33, 0), App.Vector(-46, -33, 0)), False)
sketch2.addGeometry(Part.LineSegment(App.Vector(-46, -33, 0), App.Vector(-46, -29, 0)), False)
sketch2.addGeometry(Part.LineSegment(App.Vector(-46, -29, 0), App.Vector(-44, -29, 0)), False)
sketch2.addGeometry(Part.LineSegment(App.Vector(-44, -29, 0), App.Vector(-44, -31, 0)), False)
sketch2.addGeometry(Part.LineSegment(App.Vector(-44, 19, 0), App.Vector(-44, 17, 0)), False)
sketch2.addGeometry(Part.LineSegment(App.Vector(-44, 17, 0), App.Vector(-46, 17, 0)), False)
sketch2.addGeometry(Part.LineSegment(App.Vector(-46, 17, 0), App.Vector(-46, 21, 0)), False)
sketch2.addGeometry(Part.LineSegment(App.Vector(-46, 21, 0), App.Vector(-42, 21, 0)), False)
sketch2.addGeometry(Part.LineSegment(App.Vector(-42, 21, 0), App.Vector(-42, 19, 0)), False)
sketch2.addGeometry(Part.LineSegment(App.Vector(-42, 19, 0), App.Vector(-44, 19, 0)), False)
sketch2.addGeometry(Part.LineSegment(App.Vector(8, 17, 0), App.Vector(6, 17, 0)), False)
sketch2.addGeometry(Part.LineSegment(App.Vector(6, 17, 0), App.Vector(6, 19, 0)), False)
sketch2.addGeometry(Part.LineSegment(App.Vector(6, 19, 0), App.Vector(4, 19, 0)), False)
sketch2.addGeometry(Part.LineSegment(App.Vector(4, 19, 0), App.Vector(4, 21, 0)), False)
sketch2.addGeometry(Part.LineSegment(App.Vector(4, 21, 0), App.Vector(8, 21, 0)), False)
sketch2.addGeometry(Part.LineSegment(App.Vector(8, 21, 0), App.Vector(8, 17, 0)), False)
sketch2.addConstraint(Sketcher.Constraint("Coincident", 0, 2, 1, 1))
sketch2.addConstraint(Sketcher.Constraint("Coincident", 1, 2, 2, 1))
sketch2.addConstraint(Sketcher.Constraint("Coincident", 2, 2, 3, 1))
sketch2.addConstraint(Sketcher.Constraint("Coincident", 3, 2, 4, 1))
sketch2.addConstraint(Sketcher.Constraint("Coincident", 4, 2, 5, 1))
sketch2.addConstraint(Sketcher.Constraint("Coincident", 5, 2, 0, 1))
sketch2.addConstraint(Sketcher.Constraint("Coincident", 6, 2, 7, 1))
sketch2.addConstraint(Sketcher.Constraint("Coincident", 7, 2, 8, 1))
sketch2.addConstraint(Sketcher.Constraint("Coincident", 8, 2, 9, 1))
sketch2.addConstraint(Sketcher.Constraint("Coincident", 9, 2, 10, 1))
sketch2.addConstraint(Sketcher.Constraint("Coincident", 10, 2, 11, 1))
sketch2.addConstraint(Sketcher.Constraint("Coincident", 11, 2, 6, 1))
sketch2.addConstraint(Sketcher.Constraint("Coincident", 12, 2, 13, 1))
sketch2.addConstraint(Sketcher.Constraint("Coincident", 13, 2, 14, 1))
sketch2.addConstraint(Sketcher.Constraint("Coincident", 14, 2, 15, 1))
sketch2.addConstraint(Sketcher.Constraint("Coincident", 15, 2, 16, 1))
sketch2.addConstraint(Sketcher.Constraint("Coincident", 16, 2, 17, 1))
sketch2.addConstraint(Sketcher.Constraint("Coincident", 17, 2, 12, 1))
sketch2.addConstraint(Sketcher.Constraint("Coincident", 18, 2, 19, 1))
sketch2.addConstraint(Sketcher.Constraint("Coincident", 19, 2, 20, 1))
sketch2.addConstraint(Sketcher.Constraint("Coincident", 20, 2, 21, 1))
sketch2.addConstraint(Sketcher.Constraint("Coincident", 21, 2, 22, 1))
sketch2.addConstraint(Sketcher.Constraint("Coincident", 22, 2, 23, 1))
sketch2.addConstraint(Sketcher.Constraint("Coincident", 23, 2, 18, 1))
sketch2.addConstraint(Sketcher.Constraint("Vertical", 0))
sketch2.addConstraint(Sketcher.Constraint("Horizontal", 1))
sketch2.addConstraint(Sketcher.Constraint("Vertical", 2))
sketch2.addConstraint(Sketcher.Constraint("Horizontal", 3))
sketch2.addConstraint(Sketcher.Constraint("Vertical", 4))
sketch2.addConstraint(Sketcher.Constraint("Horizontal", 5))
sketch2.addConstraint(Sketcher.Constraint("Horizontal", 6))
sketch2.addConstraint(Sketcher.Constraint("Vertical", 7))
sketch2.addConstraint(Sketcher.Constraint("Horizontal", 8))
sketch2.addConstraint(Sketcher.Constraint("Vertical", 9))
sketch2.addConstraint(Sketcher.Constraint("Horizontal", 10))
sketch2.addConstraint(Sketcher.Constraint("Vertical", 11))
sketch2.addConstraint(Sketcher.Constraint("Vertical", 12))
sketch2.addConstraint(Sketcher.Constraint("Horizontal", 13))
sketch2.addConstraint(Sketcher.Constraint("Vertical", 14))
sketch2.addConstraint(Sketcher.Constraint("Horizontal", 15))
sketch2.addConstraint(Sketcher.Constraint("Vertical", 16))
sketch2.addConstraint(Sketcher.Constraint("Horizontal", 17))
sketch2.addConstraint(Sketcher.Constraint("Horizontal", 18))
sketch2.addConstraint(Sketcher.Constraint("Vertical", 19))
sketch2.addConstraint(Sketcher.Constraint("Horizontal", 20))
sketch2.addConstraint(Sketcher.Constraint("Vertical", 21))
sketch2.addConstraint(Sketcher.Constraint("Horizontal", 22))
sketch2.addConstraint(Sketcher.Constraint("Vertical", 23))
sketch2.addConstraint(Sketcher.Constraint("Horizontal", 1, 2, 6, 2))
sketch2.addConstraint(Sketcher.Constraint("Horizontal", 5, 2, 7, 2))
sketch2.addConstraint(Sketcher.Constraint("Horizontal", 3, 2, 9, 2))
sketch2.addConstraint(Sketcher.Constraint("Horizontal", 13, 2, 18, 2))
sketch2.addConstraint(Sketcher.Constraint("Horizontal", 17, 2, 19, 2))
sketch2.addConstraint(Sketcher.Constraint("Horizontal", 15, 2, 21, 2))
sketch2.addConstraint(Sketcher.Constraint("Vertical", 11, 2, 12, 2))
sketch2.addConstraint(Sketcher.Constraint("Vertical", 9, 2, 13, 2))
sketch2.addConstraint(Sketcher.Constraint("Vertical", 7, 2, 15, 2))
sketch2.addConstraint(Sketcher.Constraint("Vertical", 2, 2, 18, 2))
sketch2.addConstraint(Sketcher.Constraint("Vertical", 5, 2, 20, 2))
sketch2.addConstraint(Sketcher.Constraint("Vertical", 4, 2, 22, 2))
sketch2.addConstraint(Sketcher.Constraint("Equal", 1, 3))
sketch2.addConstraint(Sketcher.Constraint("Equal", 3, 6))
sketch2.addConstraint(Sketcher.Constraint("Equal", 5, 8))
sketch2.addConstraint(Sketcher.Constraint("Equal", 20, 0))
sketch2.addConstraint(Sketcher.Constraint("Equal", 0, 2))
sketch2.addConstraint(Sketcher.Constraint("Equal", 11, 12))
sketch2.addConstraint(Sketcher.Constraint("Equal", 9, 14))
sketch2.addConstraint(Sketcher.Constraint("DistanceX", 1, 1, 1, 2, 2.0))
sketch2.addConstraint(Sketcher.Constraint("DistanceX", -1, 1, 0, 2, 4.0))
sketch2.addConstraint(Sketcher.Constraint("DistanceY", 0, 2, -1, 1, 31.0))
sketch2.addConstraint(Sketcher.Constraint("DistanceX", 6, 2, -1, 1, 42.0))
sketch2.addConstraint(Sketcher.Constraint("DistanceY", -1, 1, 12, 2, 17.0))
pad2 = body.newObject("PartDesign::Pad", "Pad001")
pad2.Profile = sketch2
pad2.Length = 9
pad2.Reversed = True

doc.recompute()
